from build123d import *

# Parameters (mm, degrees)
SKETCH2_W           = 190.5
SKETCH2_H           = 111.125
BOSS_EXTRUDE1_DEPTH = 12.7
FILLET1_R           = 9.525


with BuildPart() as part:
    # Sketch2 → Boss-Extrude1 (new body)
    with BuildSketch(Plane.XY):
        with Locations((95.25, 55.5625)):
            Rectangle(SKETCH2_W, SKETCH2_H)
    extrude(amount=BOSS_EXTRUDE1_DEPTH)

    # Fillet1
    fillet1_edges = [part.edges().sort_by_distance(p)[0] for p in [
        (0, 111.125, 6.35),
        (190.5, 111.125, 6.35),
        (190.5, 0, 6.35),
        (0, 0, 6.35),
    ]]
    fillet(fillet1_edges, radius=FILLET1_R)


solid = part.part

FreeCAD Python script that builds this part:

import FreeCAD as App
import Part
import Sketcher
Q = App.Units.Quantity


def edges_at(feature, points):
    """Names of the edges that pass closest to the given points."""
    edges = feature.Shape.Edges
    near = lambda p: min(range(len(edges)), key=lambda i: edges[i].distToShape(Part.Vertex(*p))[0])
    return sorted({f"Edge{near(p) + 1}" for p in points})


def add_polygon(sketch, points):
    """Adds a closed chain of lines whose ends are joined by coincident constraints."""
    first, n = sketch.GeometryCount, len(points)
    for a, b in zip(points, points[1:] + points[:1]):
        sketch.addGeometry(Part.LineSegment(App.Vector(*a, 0), App.Vector(*b, 0)), False)
    for i in range(n):
        sketch.addConstraint(Sketcher.Constraint("Coincident", first + i, 2, first + (i + 1) % n, 1))

doc = App.newDocument("Part")
params = doc.addObject("Spreadsheet::Sheet", "Params")
for row, (alias, value) in enumerate([
    ("sketch1_width", "7.5 in"),
    ("sketch1_height", "4.375 in"),
    ("pad1_length", "0.5 in"),
    ("fillet_radius", "0.375 in"),
], start=1):
    params.set(f"A{row}", alias)
    params.set(f"B{row}", "=" + value)
    params.setAlias(f"B{row}", alias)

body = doc.addObject("PartDesign::Body", "Body")

# Sketch on XY plane
sketch1 = body.newObject("Sketcher::SketchObject", "Sketch")
sketch1.AttachmentSupport = (doc.getObject("XY_Plane"), [""])
sketch1.MapMode = "FlatFace"
add_polygon(sketch1, [(0, 111), (0, 0), (190, 0), (190, 111)])  # lines 0-3
sketch1.addConstraint([
    Sketcher.Constraint("Vertical", 0),
    Sketcher.Constraint("Horizontal", 1),
    Sketcher.Constraint("Vertical", 2),
    Sketcher.Constraint("Horizontal", 3),
    Sketcher.Constraint("Coincident", 0, 2, -1, 1),
    Sketcher.Constraint("DistanceX", 1, 1, 1, 2, Q("7.5 in")),
    Sketcher.Constraint("DistanceY", 0, 2, 0, 1, Q("4.375 in")),
])
sketch1.setExpression("Constraints[9]", "Params.sketch1_width")
sketch1.setExpression("Constraints[10]", "Params.sketch1_height")
pad1 = body.newObject("PartDesign::Pad", "Pad")
pad1.Profile = sketch1
pad1.setExpression("Length", "Params.pad1_length")
doc.recompute()

fillet = body.newObject("PartDesign::Fillet", "Fillet")
fillet.Base = (pad1, edges_at(pad1, [
    (0, 111.125, 6.35),
    (190.5, 111.125, 6.35),
    (190.5, 0, 6.35),
    (0, 0, 6.35),
]))
fillet.setExpression("Radius", "Params.fillet_radius")

doc.recompute()
